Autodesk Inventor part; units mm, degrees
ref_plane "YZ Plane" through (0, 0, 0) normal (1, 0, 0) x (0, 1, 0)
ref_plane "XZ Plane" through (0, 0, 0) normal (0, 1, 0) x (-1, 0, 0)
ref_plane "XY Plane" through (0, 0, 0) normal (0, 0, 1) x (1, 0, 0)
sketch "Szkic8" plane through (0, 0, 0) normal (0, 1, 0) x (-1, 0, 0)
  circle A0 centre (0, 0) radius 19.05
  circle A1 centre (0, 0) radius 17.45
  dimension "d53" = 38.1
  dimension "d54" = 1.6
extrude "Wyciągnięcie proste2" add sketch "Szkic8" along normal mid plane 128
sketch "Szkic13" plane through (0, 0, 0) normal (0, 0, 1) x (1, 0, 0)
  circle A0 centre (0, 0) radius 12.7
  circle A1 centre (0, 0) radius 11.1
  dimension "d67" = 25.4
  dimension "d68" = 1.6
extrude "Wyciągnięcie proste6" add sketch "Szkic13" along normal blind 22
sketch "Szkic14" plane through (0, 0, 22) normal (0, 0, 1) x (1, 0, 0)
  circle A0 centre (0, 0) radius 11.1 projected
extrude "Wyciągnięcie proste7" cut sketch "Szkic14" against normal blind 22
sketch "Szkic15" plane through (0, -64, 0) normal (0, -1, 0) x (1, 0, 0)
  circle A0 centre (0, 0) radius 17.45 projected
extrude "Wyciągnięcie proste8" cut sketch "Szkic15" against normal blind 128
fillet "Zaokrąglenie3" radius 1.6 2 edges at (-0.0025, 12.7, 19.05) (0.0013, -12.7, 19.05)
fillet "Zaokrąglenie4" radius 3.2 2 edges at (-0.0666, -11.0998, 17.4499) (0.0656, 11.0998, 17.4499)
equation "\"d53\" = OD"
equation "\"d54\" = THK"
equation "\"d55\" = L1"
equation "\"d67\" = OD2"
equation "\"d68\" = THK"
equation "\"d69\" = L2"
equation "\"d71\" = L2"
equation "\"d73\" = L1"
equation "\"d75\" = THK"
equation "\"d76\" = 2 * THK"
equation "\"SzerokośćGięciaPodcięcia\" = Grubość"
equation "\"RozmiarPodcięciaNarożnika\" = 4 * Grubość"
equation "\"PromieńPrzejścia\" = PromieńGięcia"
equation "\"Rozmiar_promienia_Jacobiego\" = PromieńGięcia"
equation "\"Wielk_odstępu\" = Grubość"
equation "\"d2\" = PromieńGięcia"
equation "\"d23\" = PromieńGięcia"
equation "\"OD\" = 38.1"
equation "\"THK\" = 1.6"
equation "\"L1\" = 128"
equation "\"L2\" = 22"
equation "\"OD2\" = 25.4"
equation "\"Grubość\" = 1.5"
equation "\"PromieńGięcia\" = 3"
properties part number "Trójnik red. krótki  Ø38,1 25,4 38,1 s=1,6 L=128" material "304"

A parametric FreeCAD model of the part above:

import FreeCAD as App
import Part
import Sketcher

V = App.Vector


def edges_at(feature, points):
    """Names of the edges that pass closest to the given points."""
    edges = feature.Shape.Edges
    near = lambda p: min(range(len(edges)), key=lambda i: edges[i].distToShape(Part.Vertex(*p))[0])
    return sorted({f"Edge{near(p) + 1}" for p in points})

doc = App.newDocument("Part")
body = doc.addObject("PartDesign::Body", "Body")

sketch1 = doc.addObject("Sketcher::SketchObject", "Sketch")
body.addObject(sketch1)
sketch1.AttachmentSupport = (doc.XZ_Plane, [""])
sketch1.MapMode = "FlatFace"
sketch1.addGeometry([
    Part.Circle(V(0, 0, 0), V(0, 0, 1), 19.05),
    Part.Circle(V(0, 0, 0), V(0, 0, 1), 17.45),
], False)
sketch1.addConstraint([
    Sketcher.Constraint("Coincident", 0, 3, -1, 1),
    Sketcher.Constraint("Coincident", 1, 3, -1, 1),
    Sketcher.Constraint("Diameter", 0, 38.1),
    Sketcher.Constraint("Diameter", 1, 34.9),
])
pad1 = doc.addObject("PartDesign::Pad", "Pad")
body.addObject(pad1)
pad1.Profile = sketch1
pad1.Length = 128
pad1.Midplane = True

sketch2 = doc.addObject("Sketcher::SketchObject", "Sketch001")
body.addObject(sketch2)
sketch2.AttachmentSupport = (doc.XY_Plane, [""])
sketch2.MapMode = "FlatFace"
sketch2.addGeometry([
    Part.Circle(V(0, 0, 0), V(0, 0, 1), 12.7),
    Part.Circle(V(0, 0, 0), V(0, 0, 1), 11.1),
], False)
sketch2.addConstraint([
    Sketcher.Constraint("Coincident", 0, 3, -1, 1),
    Sketcher.Constraint("Coincident", 1, 3, -1, 1),
    Sketcher.Constraint("Diameter", 0, 25.4),
    Sketcher.Constraint("Diameter", 1, 22.2),
])
pad2 = doc.addObject("PartDesign::Pad", "Pad001")
body.addObject(pad2)
pad2.Profile = sketch2
pad2.Length = 22

sketch3 = doc.addObject("Sketcher::SketchObject", "Sketch002")
body.addObject(sketch3)
sketch3.AttachmentSupport = (doc.XY_Plane, [""])
sketch3.MapMode = "FlatFace"
sketch3.AttachmentOffset = App.Placement(V(0, 0, 22), App.Rotation())
sketch3.addGeometry(Part.Circle(V(0, 0, 0), V(0, 0, 1), 11.1), False)
sketch3.addConstraint([
    Sketcher.Constraint("Coincident", 0, 3, -1, 1),
    Sketcher.Constraint("Diameter", 0, 22.2),
])
pocket1 = doc.addObject("PartDesign::Pocket", "Pocket")
body.addObject(pocket1)
pocket1.Profile = sketch3
pocket1.Length = 22

sketch4 = doc.addObject("Sketcher::SketchObject", "Sketch003")
body.addObject(sketch4)
sketch4.AttachmentSupport = (doc.XZ_Plane, [""])
sketch4.MapMode = "FlatFace"
sketch4.AttachmentOffset = App.Placement(V(0, 0, 64), App.Rotation())
sketch4.addGeometry(Part.Circle(V(0, 0, 0), V(0, 0, 1), 17.45), False)
sketch4.addConstraint([
    Sketcher.Constraint("Coincident", 0, 3, -1, 1),
    Sketcher.Constraint("Diameter", 0, 34.9),
])
pocket2 = doc.addObject("PartDesign::Pocket", "Pocket001")
body.addObject(pocket2)
pocket2.Profile = sketch4
pocket2.Length = 128
doc.recompute()

fillet = doc.addObject("PartDesign::Fillet", "Fillet")
body.addObject(fillet)
fillet.Base = (pocket2, edges_at(pocket2, [(-0.003, 12.7, 19.05), (0.001, -12.7, 19.05)]))
fillet.Radius = 1.6
doc.recompute()

fillet2 = doc.addObject("PartDesign::Fillet", "Fillet001")
body.addObject(fillet2)
fillet2.Base = (fillet, edges_at(fillet, [(-0.067, -11.1, 17.45), (0.066, 11.1, 17.45)]))
fillet2.Radius = 3.2

doc.recompute()
